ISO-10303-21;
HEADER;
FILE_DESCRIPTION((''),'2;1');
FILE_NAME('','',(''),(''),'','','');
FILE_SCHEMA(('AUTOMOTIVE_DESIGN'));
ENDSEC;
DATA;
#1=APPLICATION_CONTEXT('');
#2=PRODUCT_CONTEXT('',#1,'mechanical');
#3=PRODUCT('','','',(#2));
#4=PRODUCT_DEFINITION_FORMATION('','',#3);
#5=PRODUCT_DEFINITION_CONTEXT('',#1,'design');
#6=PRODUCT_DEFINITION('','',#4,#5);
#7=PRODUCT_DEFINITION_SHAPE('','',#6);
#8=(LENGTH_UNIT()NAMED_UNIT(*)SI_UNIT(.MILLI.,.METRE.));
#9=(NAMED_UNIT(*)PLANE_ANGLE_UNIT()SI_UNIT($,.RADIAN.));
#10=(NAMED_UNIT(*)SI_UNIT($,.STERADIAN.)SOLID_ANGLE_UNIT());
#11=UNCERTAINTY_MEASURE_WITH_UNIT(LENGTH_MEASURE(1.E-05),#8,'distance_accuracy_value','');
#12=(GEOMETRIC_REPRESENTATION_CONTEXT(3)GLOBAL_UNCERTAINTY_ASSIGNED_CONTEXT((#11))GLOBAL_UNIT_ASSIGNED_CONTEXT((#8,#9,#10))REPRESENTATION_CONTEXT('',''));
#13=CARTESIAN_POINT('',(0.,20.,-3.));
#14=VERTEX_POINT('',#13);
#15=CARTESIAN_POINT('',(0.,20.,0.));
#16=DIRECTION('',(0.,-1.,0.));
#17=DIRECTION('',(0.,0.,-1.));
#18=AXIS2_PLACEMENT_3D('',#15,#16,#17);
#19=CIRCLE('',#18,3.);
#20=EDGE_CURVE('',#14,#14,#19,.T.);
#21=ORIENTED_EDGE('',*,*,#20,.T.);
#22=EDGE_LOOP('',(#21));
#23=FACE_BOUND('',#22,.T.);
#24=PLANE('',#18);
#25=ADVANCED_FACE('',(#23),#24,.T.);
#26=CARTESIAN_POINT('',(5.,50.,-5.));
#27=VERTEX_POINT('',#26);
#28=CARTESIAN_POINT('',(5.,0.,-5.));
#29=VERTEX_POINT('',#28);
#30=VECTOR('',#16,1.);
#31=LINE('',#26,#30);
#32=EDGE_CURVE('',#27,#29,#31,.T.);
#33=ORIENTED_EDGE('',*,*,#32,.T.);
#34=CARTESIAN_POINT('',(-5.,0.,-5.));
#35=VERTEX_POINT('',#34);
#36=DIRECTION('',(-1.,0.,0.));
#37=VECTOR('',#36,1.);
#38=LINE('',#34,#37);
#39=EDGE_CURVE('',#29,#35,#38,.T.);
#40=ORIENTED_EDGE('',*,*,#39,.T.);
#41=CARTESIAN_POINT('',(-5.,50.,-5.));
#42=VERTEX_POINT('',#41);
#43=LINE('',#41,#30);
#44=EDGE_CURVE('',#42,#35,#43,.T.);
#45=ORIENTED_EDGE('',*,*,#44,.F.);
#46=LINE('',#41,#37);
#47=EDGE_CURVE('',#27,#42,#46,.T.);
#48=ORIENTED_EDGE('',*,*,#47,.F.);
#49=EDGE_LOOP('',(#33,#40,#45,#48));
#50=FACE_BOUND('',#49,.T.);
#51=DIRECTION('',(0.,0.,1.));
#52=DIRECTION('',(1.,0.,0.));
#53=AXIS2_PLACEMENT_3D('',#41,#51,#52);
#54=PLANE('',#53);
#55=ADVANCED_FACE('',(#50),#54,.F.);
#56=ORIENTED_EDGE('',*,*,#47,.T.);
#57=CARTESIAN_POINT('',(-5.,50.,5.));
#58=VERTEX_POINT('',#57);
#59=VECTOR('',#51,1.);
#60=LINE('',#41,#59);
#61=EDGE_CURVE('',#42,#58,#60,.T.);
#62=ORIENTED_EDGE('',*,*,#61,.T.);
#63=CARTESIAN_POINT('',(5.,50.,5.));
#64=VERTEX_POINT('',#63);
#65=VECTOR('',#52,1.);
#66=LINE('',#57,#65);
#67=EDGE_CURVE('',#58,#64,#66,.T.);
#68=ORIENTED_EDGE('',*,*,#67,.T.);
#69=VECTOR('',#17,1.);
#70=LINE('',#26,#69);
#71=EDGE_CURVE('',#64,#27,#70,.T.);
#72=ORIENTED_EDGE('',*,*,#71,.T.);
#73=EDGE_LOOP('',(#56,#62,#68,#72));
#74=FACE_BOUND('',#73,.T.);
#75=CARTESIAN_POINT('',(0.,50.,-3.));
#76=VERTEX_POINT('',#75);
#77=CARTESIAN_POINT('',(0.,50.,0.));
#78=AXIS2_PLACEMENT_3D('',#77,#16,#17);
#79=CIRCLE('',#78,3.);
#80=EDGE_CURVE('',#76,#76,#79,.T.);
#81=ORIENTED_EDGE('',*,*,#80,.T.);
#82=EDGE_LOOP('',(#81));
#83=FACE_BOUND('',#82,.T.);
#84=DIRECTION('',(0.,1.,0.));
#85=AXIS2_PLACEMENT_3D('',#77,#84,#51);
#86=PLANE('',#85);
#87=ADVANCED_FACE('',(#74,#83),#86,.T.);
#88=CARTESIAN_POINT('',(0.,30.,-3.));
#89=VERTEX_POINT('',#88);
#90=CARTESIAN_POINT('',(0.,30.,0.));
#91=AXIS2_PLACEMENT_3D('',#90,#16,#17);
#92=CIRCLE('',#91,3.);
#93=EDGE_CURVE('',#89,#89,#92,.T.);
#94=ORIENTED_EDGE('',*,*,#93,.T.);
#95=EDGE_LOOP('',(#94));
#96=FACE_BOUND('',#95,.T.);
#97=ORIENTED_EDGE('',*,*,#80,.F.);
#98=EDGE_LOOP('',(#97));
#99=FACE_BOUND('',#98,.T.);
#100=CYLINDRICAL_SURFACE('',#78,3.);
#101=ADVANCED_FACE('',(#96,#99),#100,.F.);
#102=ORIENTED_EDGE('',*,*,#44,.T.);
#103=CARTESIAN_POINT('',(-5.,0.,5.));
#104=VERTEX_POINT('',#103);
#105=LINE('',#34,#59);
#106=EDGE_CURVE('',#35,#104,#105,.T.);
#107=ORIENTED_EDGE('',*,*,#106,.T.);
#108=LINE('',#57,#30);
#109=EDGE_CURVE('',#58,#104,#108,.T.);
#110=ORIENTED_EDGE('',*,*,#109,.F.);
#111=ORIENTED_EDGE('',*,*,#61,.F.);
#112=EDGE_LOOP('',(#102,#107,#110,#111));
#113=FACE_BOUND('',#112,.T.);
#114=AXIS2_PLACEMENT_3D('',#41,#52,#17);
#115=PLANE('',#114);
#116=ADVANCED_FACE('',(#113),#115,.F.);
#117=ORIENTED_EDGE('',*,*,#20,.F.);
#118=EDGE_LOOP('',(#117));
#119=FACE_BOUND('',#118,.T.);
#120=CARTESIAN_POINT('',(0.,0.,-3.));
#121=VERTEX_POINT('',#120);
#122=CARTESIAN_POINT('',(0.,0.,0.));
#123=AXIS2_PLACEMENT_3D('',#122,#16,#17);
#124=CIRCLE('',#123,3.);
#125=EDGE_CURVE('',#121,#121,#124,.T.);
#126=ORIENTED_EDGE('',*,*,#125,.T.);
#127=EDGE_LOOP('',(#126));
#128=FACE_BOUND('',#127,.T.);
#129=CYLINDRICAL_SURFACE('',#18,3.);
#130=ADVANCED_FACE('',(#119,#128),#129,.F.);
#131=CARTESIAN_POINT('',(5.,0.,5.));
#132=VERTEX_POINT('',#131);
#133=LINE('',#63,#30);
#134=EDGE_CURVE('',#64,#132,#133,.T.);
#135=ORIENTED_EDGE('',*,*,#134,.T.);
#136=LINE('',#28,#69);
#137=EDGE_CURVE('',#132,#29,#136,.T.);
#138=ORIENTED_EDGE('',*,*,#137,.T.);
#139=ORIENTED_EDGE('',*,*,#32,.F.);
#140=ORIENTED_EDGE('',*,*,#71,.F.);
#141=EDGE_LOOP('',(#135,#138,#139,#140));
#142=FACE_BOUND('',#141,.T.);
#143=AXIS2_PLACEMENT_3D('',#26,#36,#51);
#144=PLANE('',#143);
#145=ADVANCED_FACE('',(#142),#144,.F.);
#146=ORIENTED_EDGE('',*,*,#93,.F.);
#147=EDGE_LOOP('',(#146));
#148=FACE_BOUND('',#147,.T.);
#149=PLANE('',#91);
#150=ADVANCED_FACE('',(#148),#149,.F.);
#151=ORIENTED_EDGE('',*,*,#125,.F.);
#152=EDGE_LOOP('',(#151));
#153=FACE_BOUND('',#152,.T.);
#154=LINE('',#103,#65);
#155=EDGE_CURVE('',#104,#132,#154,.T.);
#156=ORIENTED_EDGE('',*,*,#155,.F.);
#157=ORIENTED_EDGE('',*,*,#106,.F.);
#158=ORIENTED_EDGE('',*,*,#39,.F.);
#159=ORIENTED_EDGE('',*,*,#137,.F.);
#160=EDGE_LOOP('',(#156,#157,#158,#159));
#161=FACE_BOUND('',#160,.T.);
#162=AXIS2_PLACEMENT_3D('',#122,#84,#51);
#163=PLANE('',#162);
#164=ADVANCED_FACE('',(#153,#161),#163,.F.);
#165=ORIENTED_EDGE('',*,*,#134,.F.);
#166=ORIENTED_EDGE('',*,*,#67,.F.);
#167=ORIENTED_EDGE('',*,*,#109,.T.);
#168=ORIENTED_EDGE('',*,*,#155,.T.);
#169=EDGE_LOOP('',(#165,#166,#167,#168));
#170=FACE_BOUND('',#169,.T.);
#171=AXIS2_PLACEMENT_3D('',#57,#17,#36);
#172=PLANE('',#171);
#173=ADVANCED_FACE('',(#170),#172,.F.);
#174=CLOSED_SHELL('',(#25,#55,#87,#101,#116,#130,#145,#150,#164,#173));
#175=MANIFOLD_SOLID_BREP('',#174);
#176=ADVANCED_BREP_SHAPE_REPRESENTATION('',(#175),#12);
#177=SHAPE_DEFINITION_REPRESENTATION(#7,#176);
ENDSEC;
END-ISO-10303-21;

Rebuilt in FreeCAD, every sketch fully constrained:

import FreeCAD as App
import Part
import Sketcher

V = App.Vector


def add_polygon(sketch, points):
    """Adds a closed chain of lines whose ends are joined by coincident constraints."""
    first, n = sketch.GeometryCount, len(points)
    for a, b in zip(points, points[1:] + points[:1]):
        sketch.addGeometry(Part.LineSegment(App.Vector(*a, 0), App.Vector(*b, 0)), False)
    for i in range(n):
        sketch.addConstraint(Sketcher.Constraint("Coincident", first + i, 2, first + (i + 1) % n, 1))

doc = App.newDocument("Part")
body = doc.addObject("PartDesign::Body", "Body")

sketch1 = doc.addObject("Sketcher::SketchObject", "Sketch")
body.addObject(sketch1)
sketch1.AttachmentSupport = (doc.XZ_Plane, [""])
sketch1.MapMode = "FlatFace"
add_polygon(sketch1, [(-5, -5), (-5, 5), (5, 5), (5, -5)])
sketch1.addConstraint([
    Sketcher.Constraint("Vertical", 0),
    Sketcher.Constraint("Horizontal", 1),
    Sketcher.Constraint("Vertical", 2),
    Sketcher.Constraint("Horizontal", 3),
    Sketcher.Constraint("Symmetric", 0, 2, 2, 2, -1, 1),
    Sketcher.Constraint("Equal", 3, 0),
    Sketcher.Constraint("DistanceX", 1, 1, 1, 2, 10.0),
])
pad1 = doc.addObject("PartDesign::Pad", "Pad")
body.addObject(pad1)
pad1.Profile = sketch1
pad1.Length = 50
pad1.Reversed = True

sketch2 = doc.addObject("Sketcher::SketchObject", "Sketch001")
body.addObject(sketch2)
sketch2.AttachmentSupport = (doc.XZ_Plane, [""])
sketch2.MapMode = "FlatFace"
sketch2.addGeometry(Part.Circle(V(0, 0, 0), V(0, 0, 1), 3), False)
sketch2.addConstraint([
    Sketcher.Constraint("Coincident", 0, 3, -1, 1),
    Sketcher.Constraint("Diameter", 0, 6.0),
])
pocket1 = doc.addObject("PartDesign::Pocket", "Pocket")
body.addObject(pocket1)
pocket1.Profile = sketch2
pocket1.Length = 20
doc.recompute()

linearpattern = doc.addObject("PartDesign::LinearPattern", "LinearPattern")
body.addObject(linearpattern)
linearpattern.Originals = [pocket1]
linearpattern.Direction = (doc.Y_Axis, [""])
linearpattern.Mode = "offset"
linearpattern.Offset = 30
linearpattern.Occurrences = 2
body.Tip = linearpattern

doc.recompute()
